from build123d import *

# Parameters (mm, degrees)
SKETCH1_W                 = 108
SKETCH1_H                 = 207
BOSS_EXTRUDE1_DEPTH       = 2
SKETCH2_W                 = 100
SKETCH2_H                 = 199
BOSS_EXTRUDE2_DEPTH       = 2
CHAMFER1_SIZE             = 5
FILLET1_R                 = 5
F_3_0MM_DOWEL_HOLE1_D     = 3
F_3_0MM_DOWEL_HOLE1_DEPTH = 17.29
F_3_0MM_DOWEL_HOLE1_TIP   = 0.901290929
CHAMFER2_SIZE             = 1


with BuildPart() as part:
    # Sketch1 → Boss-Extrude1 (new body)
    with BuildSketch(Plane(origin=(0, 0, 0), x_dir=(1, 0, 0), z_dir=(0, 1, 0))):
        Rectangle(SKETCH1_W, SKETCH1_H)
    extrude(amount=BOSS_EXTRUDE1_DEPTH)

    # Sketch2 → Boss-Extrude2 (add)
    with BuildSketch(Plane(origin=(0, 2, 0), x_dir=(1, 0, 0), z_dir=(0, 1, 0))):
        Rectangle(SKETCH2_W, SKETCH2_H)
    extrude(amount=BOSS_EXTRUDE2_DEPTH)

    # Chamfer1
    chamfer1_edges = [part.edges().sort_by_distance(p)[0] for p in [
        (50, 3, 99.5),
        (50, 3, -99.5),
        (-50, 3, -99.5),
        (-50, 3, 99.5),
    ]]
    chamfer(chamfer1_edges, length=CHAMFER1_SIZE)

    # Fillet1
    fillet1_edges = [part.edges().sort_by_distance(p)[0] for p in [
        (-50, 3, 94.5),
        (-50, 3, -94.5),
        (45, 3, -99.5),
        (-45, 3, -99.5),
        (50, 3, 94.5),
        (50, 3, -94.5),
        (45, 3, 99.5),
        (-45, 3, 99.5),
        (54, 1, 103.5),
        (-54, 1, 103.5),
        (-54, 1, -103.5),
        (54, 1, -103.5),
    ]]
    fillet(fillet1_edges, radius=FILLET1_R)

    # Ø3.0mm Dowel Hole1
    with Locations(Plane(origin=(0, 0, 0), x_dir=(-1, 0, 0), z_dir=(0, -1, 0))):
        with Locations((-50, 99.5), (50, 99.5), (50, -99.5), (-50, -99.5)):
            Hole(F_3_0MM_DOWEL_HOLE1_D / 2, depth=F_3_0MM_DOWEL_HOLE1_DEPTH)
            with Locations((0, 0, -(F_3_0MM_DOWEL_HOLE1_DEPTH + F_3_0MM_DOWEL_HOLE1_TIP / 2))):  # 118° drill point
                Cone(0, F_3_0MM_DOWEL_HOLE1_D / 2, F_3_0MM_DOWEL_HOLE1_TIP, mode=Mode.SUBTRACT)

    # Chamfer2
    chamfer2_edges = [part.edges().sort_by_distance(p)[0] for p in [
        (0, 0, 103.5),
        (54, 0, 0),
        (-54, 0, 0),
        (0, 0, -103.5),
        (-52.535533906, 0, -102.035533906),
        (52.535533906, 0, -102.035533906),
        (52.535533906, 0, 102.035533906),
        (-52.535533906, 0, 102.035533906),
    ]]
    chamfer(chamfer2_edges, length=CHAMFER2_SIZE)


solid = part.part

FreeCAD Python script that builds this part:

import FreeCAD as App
import Part
import Sketcher
from FreeCAD import Vector
Q = App.Units.Quantity


def edges_at(feature, points):
    """Names of the edges that pass closest to the given points."""
    edges = feature.Shape.Edges
    near = lambda p: min(range(len(edges)), key=lambda i: edges[i].distToShape(Part.Vertex(*p))[0])
    return sorted({f"Edge{near(p) + 1}" for p in points})


def add_polygon(sketch, points):
    """Adds a closed chain of lines whose ends are joined by coincident constraints."""
    first, n = sketch.GeometryCount, len(points)
    for a, b in zip(points, points[1:] + points[:1]):
        sketch.addGeometry(Part.LineSegment(App.Vector(*a, 0), App.Vector(*b, 0)), False)
    for i in range(n):
        sketch.addConstraint(Sketcher.Constraint("Coincident", first + i, 2, first + (i + 1) % n, 1))

doc = App.newDocument("Part")
body = doc.addObject("PartDesign::Body", "Body")

# Sketch on XZ plane
sketch1 = body.newObject("Sketcher::SketchObject", "Sketch")
sketch1.AttachmentSupport = (doc.getObject("XZ_Plane"), [""])
sketch1.MapMode = "FlatFace"
add_polygon(sketch1, [(-54, -103.5), (-54, 103.5), (54, 103.5), (54, -103.5)])  # lines 0-3
sketch1.addConstraint([
    Sketcher.Constraint("Vertical", 0),
    Sketcher.Constraint("Horizontal", 1),
    Sketcher.Constraint("Vertical", 2),
    Sketcher.Constraint("Horizontal", 3),
    Sketcher.Constraint("Symmetric", 0, 2, 2, 2, -1, 1),
    Sketcher.Constraint("DistanceX", 1, 1, 1, 2, Q("108 mm")),
    Sketcher.Constraint("DistanceY", 0, 1, 0, 2, Q("207 mm")),
])
pad1 = body.newObject("PartDesign::Pad", "Pad")
pad1.Profile = sketch1
pad1.Length = 2
pad1.Reversed = True

# Sketch on XZ plane
sketch2 = body.newObject("Sketcher::SketchObject", "Sketch001")
sketch2.AttachmentSupport = (doc.getObject("XZ_Plane"), [""])
sketch2.MapMode = "FlatFace"
sketch2.AttachmentOffset = App.Placement(Vector(0, 0, -2), App.Rotation())
add_polygon(sketch2, [(-50, -99.5), (-50, 99.5), (50, 99.5), (50, -99.5)])  # lines 0-3
sketch2.addConstraint([
    Sketcher.Constraint("Vertical", 0),
    Sketcher.Constraint("Horizontal", 1),
    Sketcher.Constraint("Vertical", 2),
    Sketcher.Constraint("Horizontal", 3),
    Sketcher.Constraint("Symmetric", 0, 2, 2, 2, -1, 1),
    Sketcher.Constraint("DistanceX", 1, 1, 1, 2, Q("100 mm")),
    Sketcher.Constraint("DistanceY", 0, 1, 0, 2, Q("199 mm")),
])
pad2 = body.newObject("PartDesign::Pad", "Pad001")
pad2.Profile = sketch2
pad2.Length = 2
pad2.Reversed = True
doc.recompute()

chamfer = body.newObject("PartDesign::Chamfer", "Chamfer")
chamfer.Base = (pad2, edges_at(pad2, [
    (50, 3, 99.5),
    (50, 3, -99.5),
    (-50, 3, -99.5),
    (-50, 3, 99.5),
]))
chamfer.Size = 5
doc.recompute()

fillet = body.newObject("PartDesign::Fillet", "Fillet")
fillet.Base = (chamfer, edges_at(chamfer, [
    (-50, 3, 94.5),
    (-50, 3, -94.5),
    (45, 3, -99.5),
    (-45, 3, -99.5),
    (50, 3, 94.5),
    (50, 3, -94.5),
    (45, 3, 99.5),
    (-45, 3, 99.5),
    (54, 1, 103.5),
    (-54, 1, 103.5),
    (-54, 1, -103.5),
    (54, 1, -103.5),
]))
fillet.Radius = 5

# Sketch on XZ plane
sketch3 = body.newObject("Sketcher::SketchObject", "Sketch002")
sketch3.AttachmentSupport = (doc.getObject("XZ_Plane"), [""])
sketch3.MapMode = "FlatFace"
sketch3.addGeometry([
    Part.Circle(Vector(50, -99.5, 0), Vector(0, 0, 1), 1.5),
    Part.Circle(Vector(-50, -99.5, 0), Vector(0, 0, 1), 1.5),
    Part.Circle(Vector(-50, 99.5, 0), Vector(0, 0, 1), 1.5),
    Part.Circle(Vector(50, 99.5, 0), Vector(0, 0, 1), 1.5),
], False)
sketch3.addConstraint([
    Sketcher.Constraint("Equal", 0, 1),
    Sketcher.Constraint("Equal", 1, 2),
    Sketcher.Constraint("Equal", 2, 3),
    Sketcher.Constraint("Symmetric", 0, 3, 2, 3, -1, 1),
    Sketcher.Constraint("Symmetric", 1, 3, 3, 3, -1, 1),
    Sketcher.Constraint("Symmetric", 0, 3, 1, 3, -2),
    Sketcher.Constraint("Diameter", 0, Q("3 mm")),
    Sketcher.Constraint("DistanceX", -1, 1, 0, 3, Q("50 mm")),
    Sketcher.Constraint("DistanceY", 1, 3, 2, 3, Q("199 mm")),
])
doc.recompute()
hole = body.newObject("PartDesign::Hole", "Hole")
hole.Profile = sketch3
hole.ThreadType = "None"
hole.Diameter = 3
hole.DepthType = "Dimension"
hole.Depth = 17.29
hole.DrillPoint = "Angled"
hole.DrillPointAngle = 118
doc.recompute()

chamfer2 = body.newObject("PartDesign::Chamfer", "Chamfer001")
chamfer2.Base = (hole, edges_at(hole, [
    (0, 0, 103.5),
    (54, 0, 0),
    (-54, 0, 0),
    (0, 0, -103.5),
    (-52.536, 0, -102.036),
    (52.536, 0, -102.036),
    (52.536, 0, 102.036),
    (-52.536, 0, 102.036),
]))
chamfer2.Size = 1

doc.recompute()
